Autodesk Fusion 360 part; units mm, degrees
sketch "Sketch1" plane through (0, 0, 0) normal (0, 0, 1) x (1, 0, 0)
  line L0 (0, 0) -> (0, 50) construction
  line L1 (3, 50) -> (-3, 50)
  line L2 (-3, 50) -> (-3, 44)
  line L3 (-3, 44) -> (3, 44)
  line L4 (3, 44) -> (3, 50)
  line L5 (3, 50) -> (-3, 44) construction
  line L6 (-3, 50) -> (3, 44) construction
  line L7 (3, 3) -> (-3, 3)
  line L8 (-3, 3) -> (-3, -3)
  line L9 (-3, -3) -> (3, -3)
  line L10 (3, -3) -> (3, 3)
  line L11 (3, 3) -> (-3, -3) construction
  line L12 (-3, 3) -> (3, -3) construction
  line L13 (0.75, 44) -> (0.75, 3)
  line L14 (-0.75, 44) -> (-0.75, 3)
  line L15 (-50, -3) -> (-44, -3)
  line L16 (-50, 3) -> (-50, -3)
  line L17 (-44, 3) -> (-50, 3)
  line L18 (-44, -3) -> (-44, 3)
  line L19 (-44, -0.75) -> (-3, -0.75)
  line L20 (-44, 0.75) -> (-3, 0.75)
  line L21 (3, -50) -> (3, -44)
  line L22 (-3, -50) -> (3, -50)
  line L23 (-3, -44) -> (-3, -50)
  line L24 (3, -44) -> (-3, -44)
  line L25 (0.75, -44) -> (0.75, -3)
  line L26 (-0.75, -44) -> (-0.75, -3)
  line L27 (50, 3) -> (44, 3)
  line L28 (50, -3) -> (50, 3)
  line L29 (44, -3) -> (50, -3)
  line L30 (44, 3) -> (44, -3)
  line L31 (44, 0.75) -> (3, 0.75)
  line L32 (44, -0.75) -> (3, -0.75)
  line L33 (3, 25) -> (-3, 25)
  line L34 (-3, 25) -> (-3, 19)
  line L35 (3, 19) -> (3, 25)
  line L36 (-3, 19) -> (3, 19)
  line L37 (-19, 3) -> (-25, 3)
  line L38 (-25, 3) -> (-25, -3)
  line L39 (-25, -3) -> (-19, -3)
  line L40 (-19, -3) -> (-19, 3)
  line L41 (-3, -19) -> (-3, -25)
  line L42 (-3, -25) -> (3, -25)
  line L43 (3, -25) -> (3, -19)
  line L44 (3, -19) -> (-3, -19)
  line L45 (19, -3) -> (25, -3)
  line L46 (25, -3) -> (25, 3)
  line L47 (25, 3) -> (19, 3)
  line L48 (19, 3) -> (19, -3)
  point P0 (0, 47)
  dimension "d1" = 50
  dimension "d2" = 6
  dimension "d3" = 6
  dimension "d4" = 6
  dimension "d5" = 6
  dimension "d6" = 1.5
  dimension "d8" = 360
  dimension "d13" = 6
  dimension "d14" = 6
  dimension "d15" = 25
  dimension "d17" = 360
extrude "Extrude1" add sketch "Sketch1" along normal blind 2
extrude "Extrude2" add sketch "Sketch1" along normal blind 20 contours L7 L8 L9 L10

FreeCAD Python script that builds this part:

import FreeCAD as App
import Part
import Sketcher

V = App.Vector

doc = App.newDocument("Part")
params = doc.addObject("Spreadsheet::Sheet", "Params")
for row, (alias, value) in enumerate([
    ("sketch1_width", "6 mm"),
    ("sketch1_width2", "2.25 mm"),
    ("pad1_length", "2 mm"),
    ("sketch2_width", "6 mm"),
    ("pad2_length", "20 mm"),
], start=1):
    params.set(f"A{row}", alias)
    params.set(f"B{row}", "=" + value)
    params.setAlias(f"B{row}", alias)

body = doc.addObject("PartDesign::Body", "Body")

# Sketch on XY plane
sketch1 = body.newObject("Sketcher::SketchObject", "Sketch")
sketch1.AttachmentSupport = (doc.getObject("XY_Plane"), [""])
sketch1.MapMode = "FlatFace"
sketch1.addGeometry(Part.LineSegment(V(3, 44, 0), V(3, 50, 0)), False)
sketch1.addGeometry(Part.LineSegment(V(3, 50, 0), V(-3, 50, 0)), False)
sketch1.addGeometry(Part.LineSegment(V(-3, 50, 0), V(-3, 44, 0)), False)
sketch1.addGeometry(Part.LineSegment(V(-3, 44, 0), V(-0.8, 44, 0)), False)
sketch1.addGeometry(Part.LineSegment(V(-0.8, 44, 0), V(-0.8, 25, 0)), False)
sketch1.addGeometry(Part.LineSegment(V(-0.8, 25, 0), V(-3, 25, 0)), False)
sketch1.addGeometry(Part.LineSegment(V(-3, 25, 0), V(-3, 19, 0)), False)
sketch1.addGeometry(Part.LineSegment(V(-3, 19, 0), V(-0.8, 19, 0)), False)
sketch1.addGeometry(Part.LineSegment(V(-0.8, 19, 0), V(-0.8, 3, 0)), False)
sketch1.addGeometry(Part.LineSegment(V(-0.8, 3, 0), V(-3, 3, 0)), False)
sketch1.addGeometry(Part.LineSegment(V(-3, 3, 0), V(-3, 0.8, 0)), False)
sketch1.addGeometry(Part.LineSegment(V(-3, 0.8, 0), V(-19, 0.8, 0)), False)
sketch1.addGeometry(Part.LineSegment(V(-19, 0.8, 0), V(-19, 3, 0)), False)
sketch1.addGeometry(Part.LineSegment(V(-19, 3, 0), V(-25, 3, 0)), False)
sketch1.addGeometry(Part.LineSegment(V(-25, 3, 0), V(-25, 0.8, 0)), False)
sketch1.addGeometry(Part.LineSegment(V(-25, 0.8, 0), V(-44, 0.8, 0)), False)
sketch1.addGeometry(Part.LineSegment(V(-44, 0.8, 0), V(-44, 3, 0)), False)
sketch1.addGeometry(Part.LineSegment(V(-44, 3, 0), V(-50, 3, 0)), False)
sketch1.addGeometry(Part.LineSegment(V(-50, 3, 0), V(-50, -3, 0)), False)
sketch1.addGeometry(Part.LineSegment(V(-50, -3, 0), V(-44, -3, 0)), False)
sketch1.addGeometry(Part.LineSegment(V(-44, -3, 0), V(-44, -0.8, 0)), False)
sketch1.addGeometry(Part.LineSegment(V(-44, -0.8, 0), V(-25, -0.8, 0)), False)
sketch1.addGeometry(Part.LineSegment(V(-25, -0.8, 0), V(-25, -3, 0)), False)
sketch1.addGeometry(Part.LineSegment(V(-25, -3, 0), V(-19, -3, 0)), False)
sketch1.addGeometry(Part.LineSegment(V(-19, -3, 0), V(-19, -0.8, 0)), False)
sketch1.addGeometry(Part.LineSegment(V(-19, -0.8, 0), V(-3, -0.8, 0)), False)
sketch1.addGeometry(Part.LineSegment(V(-3, -0.8, 0), V(-3, -3, 0)), False)
sketch1.addGeometry(Part.LineSegment(V(-3, -3, 0), V(-0.8, -3, 0)), False)
sketch1.addGeometry(Part.LineSegment(V(-0.8, -3, 0), V(-0.8, -19, 0)), False)
sketch1.addGeometry(Part.LineSegment(V(-0.8, -19, 0), V(-3, -19, 0)), False)
sketch1.addGeometry(Part.LineSegment(V(-3, -19, 0), V(-3, -25, 0)), False)
sketch1.addGeometry(Part.LineSegment(V(-3, -25, 0), V(-0.8, -25, 0)), False)
sketch1.addGeometry(Part.LineSegment(V(-0.8, -25, 0), V(-0.8, -44, 0)), False)
sketch1.addGeometry(Part.LineSegment(V(-0.8, -44, 0), V(-3, -44, 0)), False)
sketch1.addGeometry(Part.LineSegment(V(-3, -44, 0), V(-3, -50, 0)), False)
sketch1.addGeometry(Part.LineSegment(V(-3, -50, 0), V(3, -50, 0)), False)
sketch1.addGeometry(Part.LineSegment(V(3, -50, 0), V(3, -44, 0)), False)
sketch1.addGeometry(Part.LineSegment(V(3, -44, 0), V(0.8, -44, 0)), False)
sketch1.addGeometry(Part.LineSegment(V(0.8, -44, 0), V(0.8, -25, 0)), False)
sketch1.addGeometry(Part.LineSegment(V(0.8, -25, 0), V(3, -25, 0)), False)
sketch1.addGeometry(Part.LineSegment(V(3, -25, 0), V(3, -19, 0)), False)
sketch1.addGeometry(Part.LineSegment(V(3, -19, 0), V(0.8, -19, 0)), False)
sketch1.addGeometry(Part.LineSegment(V(0.8, -19, 0), V(0.8, -3, 0)), False)
sketch1.addGeometry(Part.LineSegment(V(0.8, -3, 0), V(3, -3, 0)), False)
sketch1.addGeometry(Part.LineSegment(V(3, -3, 0), V(3, -0.8, 0)), False)
sketch1.addGeometry(Part.LineSegment(V(3, -0.8, 0), V(19, -0.8, 0)), False)
sketch1.addGeometry(Part.LineSegment(V(19, -0.8, 0), V(19, -3, 0)), False)
sketch1.addGeometry(Part.LineSegment(V(19, -3, 0), V(25, -3, 0)), False)
sketch1.addGeometry(Part.LineSegment(V(25, -3, 0), V(25, -0.8, 0)), False)
sketch1.addGeometry(Part.LineSegment(V(25, -0.8, 0), V(44, -0.8, 0)), False)
sketch1.addGeometry(Part.LineSegment(V(44, -0.8, 0), V(44, -3, 0)), False)
sketch1.addGeometry(Part.LineSegment(V(44, -3, 0), V(50, -3, 0)), False)
sketch1.addGeometry(Part.LineSegment(V(50, -3, 0), V(50, 3, 0)), False)
sketch1.addGeometry(Part.LineSegment(V(50, 3, 0), V(44, 3, 0)), False)
sketch1.addGeometry(Part.LineSegment(V(44, 3, 0), V(44, 0.8, 0)), False)
sketch1.addGeometry(Part.LineSegment(V(44, 0.8, 0), V(25, 0.8, 0)), False)
sketch1.addGeometry(Part.LineSegment(V(25, 0.8, 0), V(25, 3, 0)), False)
sketch1.addGeometry(Part.LineSegment(V(25, 3, 0), V(19, 3, 0)), False)
sketch1.addGeometry(Part.LineSegment(V(19, 3, 0), V(19, 0.8, 0)), False)
sketch1.addGeometry(Part.LineSegment(V(19, 0.8, 0), V(3, 0.8, 0)), False)
sketch1.addGeometry(Part.LineSegment(V(3, 0.8, 0), V(3, 3, 0)), False)
sketch1.addGeometry(Part.LineSegment(V(3, 3, 0), V(0.8, 3, 0)), False)
sketch1.addGeometry(Part.LineSegment(V(0.8, 3, 0), V(0.8, 19, 0)), False)
sketch1.addGeometry(Part.LineSegment(V(0.8, 19, 0), V(3, 19, 0)), False)
sketch1.addGeometry(Part.LineSegment(V(3, 19, 0), V(3, 25, 0)), False)
sketch1.addGeometry(Part.LineSegment(V(3, 25, 0), V(0.8, 25, 0)), False)
sketch1.addGeometry(Part.LineSegment(V(0.8, 25, 0), V(0.8, 44, 0)), False)
sketch1.addGeometry(Part.LineSegment(V(0.8, 44, 0), V(3, 44, 0)), False)
sketch1.addConstraint(Sketcher.Constraint("Coincident", 0, 2, 1, 1))
sketch1.addConstraint(Sketcher.Constraint("Coincident", 1, 2, 2, 1))
sketch1.addConstraint(Sketcher.Constraint("Coincident", 2, 2, 3, 1))
sketch1.addConstraint(Sketcher.Constraint("Coincident", 3, 2, 4, 1))
sketch1.addConstraint(Sketcher.Constraint("Coincident", 4, 2, 5, 1))
sketch1.addConstraint(Sketcher.Constraint("Coincident", 5, 2, 6, 1))
sketch1.addConstraint(Sketcher.Constraint("Coincident", 6, 2, 7, 1))
sketch1.addConstraint(Sketcher.Constraint("Coincident", 7, 2, 8, 1))
sketch1.addConstraint(Sketcher.Constraint("Coincident", 8, 2, 9, 1))
sketch1.addConstraint(Sketcher.Constraint("Coincident", 9, 2, 10, 1))
sketch1.addConstraint(Sketcher.Constraint("Coincident", 10, 2, 11, 1))
sketch1.addConstraint(Sketcher.Constraint("Coincident", 11, 2, 12, 1))
sketch1.addConstraint(Sketcher.Constraint("Coincident", 12, 2, 13, 1))
sketch1.addConstraint(Sketcher.Constraint("Coincident", 13, 2, 14, 1))
sketch1.addConstraint(Sketcher.Constraint("Coincident", 14, 2, 15, 1))
sketch1.addConstraint(Sketcher.Constraint("Coincident", 15, 2, 16, 1))
sketch1.addConstraint(Sketcher.Constraint("Coincident", 16, 2, 17, 1))
sketch1.addConstraint(Sketcher.Constraint("Coincident", 17, 2, 18, 1))
sketch1.addConstraint(Sketcher.Constraint("Coincident", 18, 2, 19, 1))
sketch1.addConstraint(Sketcher.Constraint("Coincident", 19, 2, 20, 1))
sketch1.addConstraint(Sketcher.Constraint("Coincident", 20, 2, 21, 1))
sketch1.addConstraint(Sketcher.Constraint("Coincident", 21, 2, 22, 1))
sketch1.addConstraint(Sketcher.Constraint("Coincident", 22, 2, 23, 1))
sketch1.addConstraint(Sketcher.Constraint("Coincident", 23, 2, 24, 1))
sketch1.addConstraint(Sketcher.Constraint("Coincident", 24, 2, 25, 1))
sketch1.addConstraint(Sketcher.Constraint("Coincident", 25, 2, 26, 1))
sketch1.addConstraint(Sketcher.Constraint("Coincident", 26, 2, 27, 1))
sketch1.addConstraint(Sketcher.Constraint("Coincident", 27, 2, 28, 1))
sketch1.addConstraint(Sketcher.Constraint("Coincident", 28, 2, 29, 1))
sketch1.addConstraint(Sketcher.Constraint("Coincident", 29, 2, 30, 1))
sketch1.addConstraint(Sketcher.Constraint("Coincident", 30, 2, 31, 1))
sketch1.addConstraint(Sketcher.Constraint("Coincident", 31, 2, 32, 1))
sketch1.addConstraint(Sketcher.Constraint("Coincident", 32, 2, 33, 1))
sketch1.addConstraint(Sketcher.Constraint("Coincident", 33, 2, 34, 1))
sketch1.addConstraint(Sketcher.Constraint("Coincident", 34, 2, 35, 1))
sketch1.addConstraint(Sketcher.Constraint("Coincident", 35, 2, 36, 1))
sketch1.addConstraint(Sketcher.Constraint("Coincident", 36, 2, 37, 1))
sketch1.addConstraint(Sketcher.Constraint("Coincident", 37, 2, 38, 1))
sketch1.addConstraint(Sketcher.Constraint("Coincident", 38, 2, 39, 1))
sketch1.addConstraint(Sketcher.Constraint("Coincident", 39, 2, 40, 1))
sketch1.addConstraint(Sketcher.Constraint("Coincident", 40, 2, 41, 1))
sketch1.addConstraint(Sketcher.Constraint("Coincident", 41, 2, 42, 1))
sketch1.addConstraint(Sketcher.Constraint("Coincident", 42, 2, 43, 1))
sketch1.addConstraint(Sketcher.Constraint("Coincident", 43, 2, 44, 1))
sketch1.addConstraint(Sketcher.Constraint("Coincident", 44, 2, 45, 1))
sketch1.addConstraint(Sketcher.Constraint("Coincident", 45, 2, 46, 1))
sketch1.addConstraint(Sketcher.Constraint("Coincident", 46, 2, 47, 1))
sketch1.addConstraint(Sketcher.Constraint("Coincident", 47, 2, 48, 1))
sketch1.addConstraint(Sketcher.Constraint("Coincident", 48, 2, 49, 1))
sketch1.addConstraint(Sketcher.Constraint("Coincident", 49, 2, 50, 1))
sketch1.addConstraint(Sketcher.Constraint("Coincident", 50, 2, 51, 1))
sketch1.addConstraint(Sketcher.Constraint("Coincident", 51, 2, 52, 1))
sketch1.addConstraint(Sketcher.Constraint("Coincident", 52, 2, 53, 1))
sketch1.addConstraint(Sketcher.Constraint("Coincident", 53, 2, 54, 1))
sketch1.addConstraint(Sketcher.Constraint("Coincident", 54, 2, 55, 1))
sketch1.addConstraint(Sketcher.Constraint("Coincident", 55, 2, 56, 1))
sketch1.addConstraint(Sketcher.Constraint("Coincident", 56, 2, 57, 1))
sketch1.addConstraint(Sketcher.Constraint("Coincident", 57, 2, 58, 1))
sketch1.addConstraint(Sketcher.Constraint("Coincident", 58, 2, 59, 1))
sketch1.addConstraint(Sketcher.Constraint("Coincident", 59, 2, 60, 1))
sketch1.addConstraint(Sketcher.Constraint("Coincident", 60, 2, 61, 1))
sketch1.addConstraint(Sketcher.Constraint("Coincident", 61, 2, 62, 1))
sketch1.addConstraint(Sketcher.Constraint("Coincident", 62, 2, 63, 1))
sketch1.addConstraint(Sketcher.Constraint("Coincident", 63, 2, 64, 1))
sketch1.addConstraint(Sketcher.Constraint("Coincident", 64, 2, 65, 1))
sketch1.addConstraint(Sketcher.Constraint("Coincident", 65, 2, 66, 1))
sketch1.addConstraint(Sketcher.Constraint("Coincident", 66, 2, 67, 1))
sketch1.addConstraint(Sketcher.Constraint("Coincident", 67, 2, 0, 1))
sketch1.addConstraint(Sketcher.Constraint("Vertical", 0))
sketch1.addConstraint(Sketcher.Constraint("Horizontal", 1))
sketch1.addConstraint(Sketcher.Constraint("Vertical", 2))
sketch1.addConstraint(Sketcher.Constraint("Horizontal", 3))
sketch1.addConstraint(Sketcher.Constraint("Vertical", 4))
sketch1.addConstraint(Sketcher.Constraint("Horizontal", 5))
sketch1.addConstraint(Sketcher.Constraint("Vertical", 6))
sketch1.addConstraint(Sketcher.Constraint("Horizontal", 7))
sketch1.addConstraint(Sketcher.Constraint("Vertical", 8))
sketch1.addConstraint(Sketcher.Constraint("Horizontal", 9))
sketch1.addConstraint(Sketcher.Constraint("Vertical", 10))
sketch1.addConstraint(Sketcher.Constraint("Horizontal", 11))
sketch1.addConstraint(Sketcher.Constraint("Vertical", 12))
sketch1.addConstraint(Sketcher.Constraint("Horizontal", 13))
sketch1.addConstraint(Sketcher.Constraint("Vertical", 14))
sketch1.addConstraint(Sketcher.Constraint("Horizontal", 15))
sketch1.addConstraint(Sketcher.Constraint("Vertical", 16))
sketch1.addConstraint(Sketcher.Constraint("Horizontal", 17))
sketch1.addConstraint(Sketcher.Constraint("Vertical", 18))
sketch1.addConstraint(Sketcher.Constraint("Horizontal", 19))
sketch1.addConstraint(Sketcher.Constraint("Vertical", 20))
sketch1.addConstraint(Sketcher.Constraint("Horizontal", 21))
sketch1.addConstraint(Sketcher.Constraint("Vertical", 22))
sketch1.addConstraint(Sketcher.Constraint("Horizontal", 23))
sketch1.addConstraint(Sketcher.Constraint("Vertical", 24))
sketch1.addConstraint(Sketcher.Constraint("Horizontal", 25))
sketch1.addConstraint(Sketcher.Constraint("Vertical", 26))
sketch1.addConstraint(Sketcher.Constraint("Horizontal", 27))
sketch1.addConstraint(Sketcher.Constraint("Vertical", 28))
sketch1.addConstraint(Sketcher.Constraint("Horizontal", 29))
sketch1.addConstraint(Sketcher.Constraint("Vertical", 30))
sketch1.addConstraint(Sketcher.Constraint("Horizontal", 31))
sketch1.addConstraint(Sketcher.Constraint("Vertical", 32))
sketch1.addConstraint(Sketcher.Constraint("Horizontal", 33))
sketch1.addConstraint(Sketcher.Constraint("Vertical", 34))
sketch1.addConstraint(Sketcher.Constraint("Horizontal", 35))
sketch1.addConstraint(Sketcher.Constraint("Vertical", 36))
sketch1.addConstraint(Sketcher.Constraint("Horizontal", 37))
sketch1.addConstraint(Sketcher.Constraint("Vertical", 38))
sketch1.addConstraint(Sketcher.Constraint("Horizontal", 39))
sketch1.addConstraint(Sketcher.Constraint("Vertical", 40))
sketch1.addConstraint(Sketcher.Constraint("Horizontal", 41))
sketch1.addConstraint(Sketcher.Constraint("Vertical", 42))
sketch1.addConstraint(Sketcher.Constraint("Horizontal", 43))
sketch1.addConstraint(Sketcher.Constraint("Vertical", 44))
sketch1.addConstraint(Sketcher.Constraint("Horizontal", 45))
sketch1.addConstraint(Sketcher.Constraint("Vertical", 46))
sketch1.addConstraint(Sketcher.Constraint("Horizontal", 47))
sketch1.addConstraint(Sketcher.Constraint("Vertical", 48))
sketch1.addConstraint(Sketcher.Constraint("Horizontal", 49))
sketch1.addConstraint(Sketcher.Constraint("Vertical", 50))
sketch1.addConstraint(Sketcher.Constraint("Horizontal", 51))
sketch1.addConstraint(Sketcher.Constraint("Vertical", 52))
sketch1.addConstraint(Sketcher.Constraint("Horizontal", 53))
sketch1.addConstraint(Sketcher.Constraint("Vertical", 54))
sketch1.addConstraint(Sketcher.Constraint("Horizontal", 55))
sketch1.addConstraint(Sketcher.Constraint("Vertical", 56))
sketch1.addConstraint(Sketcher.Constraint("Horizontal", 57))
sketch1.addConstraint(Sketcher.Constraint("Vertical", 58))
sketch1.addConstraint(Sketcher.Constraint("Horizontal", 59))
sketch1.addConstraint(Sketcher.Constraint("Vertical", 60))
sketch1.addConstraint(Sketcher.Constraint("Horizontal", 61))
sketch1.addConstraint(Sketcher.Constraint("Vertical", 62))
sketch1.addConstraint(Sketcher.Constraint("Horizontal", 63))
sketch1.addConstraint(Sketcher.Constraint("Vertical", 64))
sketch1.addConstraint(Sketcher.Constraint("Horizontal", 65))
sketch1.addConstraint(Sketcher.Constraint("Vertical", 66))
sketch1.addConstraint(Sketcher.Constraint("Horizontal", 67))
sketch1.addConstraint(Sketcher.Constraint("Symmetric", 0, 2, 34, 2, -1, 1))
sketch1.addConstraint(Sketcher.Constraint("Symmetric", 2, 2, 36, 2, -1, 1))
sketch1.addConstraint(Sketcher.Constraint("Symmetric", 4, 2, 38, 2, -1, 1))
sketch1.addConstraint(Sketcher.Constraint("Symmetric", 6, 2, 40, 2, -1, 1))
sketch1.addConstraint(Sketcher.Constraint("Symmetric", 8, 2, 42, 2, -1, 1))
sketch1.addConstraint(Sketcher.Constraint("Symmetric", 10, 2, 44, 2, -1, 1))
sketch1.addConstraint(Sketcher.Constraint("Symmetric", 12, 2, 46, 2, -1, 1))
sketch1.addConstraint(Sketcher.Constraint("Symmetric", 14, 2, 48, 2, -1, 1))
sketch1.addConstraint(Sketcher.Constraint("Symmetric", 16, 2, 50, 2, -1, 1))
sketch1.addConstraint(Sketcher.Constraint("Symmetric", 18, 2, 52, 2, -1, 1))
sketch1.addConstraint(Sketcher.Constraint("Symmetric", 20, 2, 54, 2, -1, 1))
sketch1.addConstraint(Sketcher.Constraint("Symmetric", 22, 2, 56, 2, -1, 1))
sketch1.addConstraint(Sketcher.Constraint("Symmetric", 24, 2, 58, 2, -1, 1))
sketch1.addConstraint(Sketcher.Constraint("Symmetric", 26, 2, 60, 2, -1, 1))
sketch1.addConstraint(Sketcher.Constraint("Symmetric", 28, 2, 62, 2, -1, 1))
sketch1.addConstraint(Sketcher.Constraint("Symmetric", 30, 2, 64, 2, -1, 1))
sketch1.addConstraint(Sketcher.Constraint("Symmetric", 32, 2, 66, 2, -1, 1))
sketch1.addConstraint(Sketcher.Constraint("Symmetric", 33, 2, 36, 2, -2))
sketch1.addConstraint(Sketcher.Constraint("Symmetric", 31, 2, 38, 2, -2))
sketch1.addConstraint(Sketcher.Constraint("Symmetric", 29, 2, 40, 2, -2))
sketch1.addConstraint(Sketcher.Constraint("Symmetric", 27, 2, 42, 2, -2))
sketch1.addConstraint(Sketcher.Constraint("Symmetric", 25, 2, 44, 2, -2))
sketch1.addConstraint(Sketcher.Constraint("Symmetric", 23, 2, 46, 2, -2))
sketch1.addConstraint(Sketcher.Constraint("Symmetric", 21, 2, 48, 2, -2))
sketch1.addConstraint(Sketcher.Constraint("Symmetric", 19, 2, 50, 2, -2))
sketch1.addConstraint(Sketcher.Constraint("Horizontal", 9, 2, 12, 2))
sketch1.addConstraint(Sketcher.Constraint("Horizontal", 11, 2, 14, 2))
sketch1.addConstraint(Sketcher.Constraint("Horizontal", 13, 2, 16, 2))
sketch1.addConstraint(Sketcher.Constraint("Vertical", 2, 2, 5, 2))
sketch1.addConstraint(Sketcher.Constraint("Vertical", 4, 2, 7, 2))
sketch1.addConstraint(Sketcher.Constraint("Vertical", 6, 2, 9, 2))
sketch1.addConstraint(Sketcher.Constraint("Equal", 1, 13))
sketch1.addConstraint(Sketcher.Constraint("Equal", 13, 17))
sketch1.addConstraint(Sketcher.Constraint("Equal", 57, 0))
sketch1.addConstraint(Sketcher.Constraint("Equal", 55, 4))
sketch1.addConstraint(Sketcher.Constraint("Equal", 2, 6))
sketch1.addConstraint(Sketcher.Constraint("Equal", 59, 8))
sketch1.addConstraint(Sketcher.Constraint("Equal", 67, 10))
sketch1.addConstraint(Sketcher.Constraint("Equal", 6, 18))
sketch1.addConstraint(Sketcher.Constraint("DistanceX", 1, 2, 1, 1, 6.0))
sketch1.addConstraint(Sketcher.Constraint("DistanceY", -1, 1, 0, 2, 50.0))
sketch1.addConstraint(Sketcher.Constraint("DistanceY", -1, 1, 4, 2, 25.0))
sketch1.addConstraint(Sketcher.Constraint("DistanceX", 3, 1, 3, 2, 2.25))
sketch1.setExpression("Constraints[175]", "Params.sketch1_width")
sketch1.setExpression("Constraints[178]", "Params.sketch1_width2")
pad1 = body.newObject("PartDesign::Pad", "Pad")
pad1.Profile = sketch1
pad1.setExpression("Length", "Params.pad1_length")

# Sketch on XY plane
sketch2 = body.newObject("Sketcher::SketchObject", "Sketch001")
sketch2.AttachmentSupport = (doc.getObject("XY_Plane"), [""])
sketch2.MapMode = "FlatFace"
sketch2.addGeometry(Part.LineSegment(V(3, 3, 0), V(-3, 3, 0)), False)
sketch2.addGeometry(Part.LineSegment(V(-3, 3, 0), V(-3, -3, 0)), False)
sketch2.addGeometry(Part.LineSegment(V(-3, -3, 0), V(3, -3, 0)), False)
sketch2.addGeometry(Part.LineSegment(V(3, -3, 0), V(3, 3, 0)), False)
sketch2.addConstraint(Sketcher.Constraint("Coincident", 0, 2, 1, 1))
sketch2.addConstraint(Sketcher.Constraint("Coincident", 1, 2, 2, 1))
sketch2.addConstraint(Sketcher.Constraint("Coincident", 2, 2, 3, 1))
sketch2.addConstraint(Sketcher.Constraint("Coincident", 3, 2, 0, 1))
sketch2.addConstraint(Sketcher.Constraint("Horizontal", 0))
sketch2.addConstraint(Sketcher.Constraint("Vertical", 1))
sketch2.addConstraint(Sketcher.Constraint("Horizontal", 2))
sketch2.addConstraint(Sketcher.Constraint("Vertical", 3))
sketch2.addConstraint(Sketcher.Constraint("Symmetric", 0, 2, 2, 2, -1, 1))
sketch2.addConstraint(Sketcher.Constraint("Equal", 2, 1))
sketch2.addConstraint(Sketcher.Constraint("DistanceX", 0, 2, 0, 1, 6.0))
sketch2.setExpression("Constraints[10]", "Params.sketch2_width")
pad2 = body.newObject("PartDesign::Pad", "Pad001")
pad2.Profile = sketch2
pad2.setExpression("Length", "Params.pad2_length")

doc.recompute()
